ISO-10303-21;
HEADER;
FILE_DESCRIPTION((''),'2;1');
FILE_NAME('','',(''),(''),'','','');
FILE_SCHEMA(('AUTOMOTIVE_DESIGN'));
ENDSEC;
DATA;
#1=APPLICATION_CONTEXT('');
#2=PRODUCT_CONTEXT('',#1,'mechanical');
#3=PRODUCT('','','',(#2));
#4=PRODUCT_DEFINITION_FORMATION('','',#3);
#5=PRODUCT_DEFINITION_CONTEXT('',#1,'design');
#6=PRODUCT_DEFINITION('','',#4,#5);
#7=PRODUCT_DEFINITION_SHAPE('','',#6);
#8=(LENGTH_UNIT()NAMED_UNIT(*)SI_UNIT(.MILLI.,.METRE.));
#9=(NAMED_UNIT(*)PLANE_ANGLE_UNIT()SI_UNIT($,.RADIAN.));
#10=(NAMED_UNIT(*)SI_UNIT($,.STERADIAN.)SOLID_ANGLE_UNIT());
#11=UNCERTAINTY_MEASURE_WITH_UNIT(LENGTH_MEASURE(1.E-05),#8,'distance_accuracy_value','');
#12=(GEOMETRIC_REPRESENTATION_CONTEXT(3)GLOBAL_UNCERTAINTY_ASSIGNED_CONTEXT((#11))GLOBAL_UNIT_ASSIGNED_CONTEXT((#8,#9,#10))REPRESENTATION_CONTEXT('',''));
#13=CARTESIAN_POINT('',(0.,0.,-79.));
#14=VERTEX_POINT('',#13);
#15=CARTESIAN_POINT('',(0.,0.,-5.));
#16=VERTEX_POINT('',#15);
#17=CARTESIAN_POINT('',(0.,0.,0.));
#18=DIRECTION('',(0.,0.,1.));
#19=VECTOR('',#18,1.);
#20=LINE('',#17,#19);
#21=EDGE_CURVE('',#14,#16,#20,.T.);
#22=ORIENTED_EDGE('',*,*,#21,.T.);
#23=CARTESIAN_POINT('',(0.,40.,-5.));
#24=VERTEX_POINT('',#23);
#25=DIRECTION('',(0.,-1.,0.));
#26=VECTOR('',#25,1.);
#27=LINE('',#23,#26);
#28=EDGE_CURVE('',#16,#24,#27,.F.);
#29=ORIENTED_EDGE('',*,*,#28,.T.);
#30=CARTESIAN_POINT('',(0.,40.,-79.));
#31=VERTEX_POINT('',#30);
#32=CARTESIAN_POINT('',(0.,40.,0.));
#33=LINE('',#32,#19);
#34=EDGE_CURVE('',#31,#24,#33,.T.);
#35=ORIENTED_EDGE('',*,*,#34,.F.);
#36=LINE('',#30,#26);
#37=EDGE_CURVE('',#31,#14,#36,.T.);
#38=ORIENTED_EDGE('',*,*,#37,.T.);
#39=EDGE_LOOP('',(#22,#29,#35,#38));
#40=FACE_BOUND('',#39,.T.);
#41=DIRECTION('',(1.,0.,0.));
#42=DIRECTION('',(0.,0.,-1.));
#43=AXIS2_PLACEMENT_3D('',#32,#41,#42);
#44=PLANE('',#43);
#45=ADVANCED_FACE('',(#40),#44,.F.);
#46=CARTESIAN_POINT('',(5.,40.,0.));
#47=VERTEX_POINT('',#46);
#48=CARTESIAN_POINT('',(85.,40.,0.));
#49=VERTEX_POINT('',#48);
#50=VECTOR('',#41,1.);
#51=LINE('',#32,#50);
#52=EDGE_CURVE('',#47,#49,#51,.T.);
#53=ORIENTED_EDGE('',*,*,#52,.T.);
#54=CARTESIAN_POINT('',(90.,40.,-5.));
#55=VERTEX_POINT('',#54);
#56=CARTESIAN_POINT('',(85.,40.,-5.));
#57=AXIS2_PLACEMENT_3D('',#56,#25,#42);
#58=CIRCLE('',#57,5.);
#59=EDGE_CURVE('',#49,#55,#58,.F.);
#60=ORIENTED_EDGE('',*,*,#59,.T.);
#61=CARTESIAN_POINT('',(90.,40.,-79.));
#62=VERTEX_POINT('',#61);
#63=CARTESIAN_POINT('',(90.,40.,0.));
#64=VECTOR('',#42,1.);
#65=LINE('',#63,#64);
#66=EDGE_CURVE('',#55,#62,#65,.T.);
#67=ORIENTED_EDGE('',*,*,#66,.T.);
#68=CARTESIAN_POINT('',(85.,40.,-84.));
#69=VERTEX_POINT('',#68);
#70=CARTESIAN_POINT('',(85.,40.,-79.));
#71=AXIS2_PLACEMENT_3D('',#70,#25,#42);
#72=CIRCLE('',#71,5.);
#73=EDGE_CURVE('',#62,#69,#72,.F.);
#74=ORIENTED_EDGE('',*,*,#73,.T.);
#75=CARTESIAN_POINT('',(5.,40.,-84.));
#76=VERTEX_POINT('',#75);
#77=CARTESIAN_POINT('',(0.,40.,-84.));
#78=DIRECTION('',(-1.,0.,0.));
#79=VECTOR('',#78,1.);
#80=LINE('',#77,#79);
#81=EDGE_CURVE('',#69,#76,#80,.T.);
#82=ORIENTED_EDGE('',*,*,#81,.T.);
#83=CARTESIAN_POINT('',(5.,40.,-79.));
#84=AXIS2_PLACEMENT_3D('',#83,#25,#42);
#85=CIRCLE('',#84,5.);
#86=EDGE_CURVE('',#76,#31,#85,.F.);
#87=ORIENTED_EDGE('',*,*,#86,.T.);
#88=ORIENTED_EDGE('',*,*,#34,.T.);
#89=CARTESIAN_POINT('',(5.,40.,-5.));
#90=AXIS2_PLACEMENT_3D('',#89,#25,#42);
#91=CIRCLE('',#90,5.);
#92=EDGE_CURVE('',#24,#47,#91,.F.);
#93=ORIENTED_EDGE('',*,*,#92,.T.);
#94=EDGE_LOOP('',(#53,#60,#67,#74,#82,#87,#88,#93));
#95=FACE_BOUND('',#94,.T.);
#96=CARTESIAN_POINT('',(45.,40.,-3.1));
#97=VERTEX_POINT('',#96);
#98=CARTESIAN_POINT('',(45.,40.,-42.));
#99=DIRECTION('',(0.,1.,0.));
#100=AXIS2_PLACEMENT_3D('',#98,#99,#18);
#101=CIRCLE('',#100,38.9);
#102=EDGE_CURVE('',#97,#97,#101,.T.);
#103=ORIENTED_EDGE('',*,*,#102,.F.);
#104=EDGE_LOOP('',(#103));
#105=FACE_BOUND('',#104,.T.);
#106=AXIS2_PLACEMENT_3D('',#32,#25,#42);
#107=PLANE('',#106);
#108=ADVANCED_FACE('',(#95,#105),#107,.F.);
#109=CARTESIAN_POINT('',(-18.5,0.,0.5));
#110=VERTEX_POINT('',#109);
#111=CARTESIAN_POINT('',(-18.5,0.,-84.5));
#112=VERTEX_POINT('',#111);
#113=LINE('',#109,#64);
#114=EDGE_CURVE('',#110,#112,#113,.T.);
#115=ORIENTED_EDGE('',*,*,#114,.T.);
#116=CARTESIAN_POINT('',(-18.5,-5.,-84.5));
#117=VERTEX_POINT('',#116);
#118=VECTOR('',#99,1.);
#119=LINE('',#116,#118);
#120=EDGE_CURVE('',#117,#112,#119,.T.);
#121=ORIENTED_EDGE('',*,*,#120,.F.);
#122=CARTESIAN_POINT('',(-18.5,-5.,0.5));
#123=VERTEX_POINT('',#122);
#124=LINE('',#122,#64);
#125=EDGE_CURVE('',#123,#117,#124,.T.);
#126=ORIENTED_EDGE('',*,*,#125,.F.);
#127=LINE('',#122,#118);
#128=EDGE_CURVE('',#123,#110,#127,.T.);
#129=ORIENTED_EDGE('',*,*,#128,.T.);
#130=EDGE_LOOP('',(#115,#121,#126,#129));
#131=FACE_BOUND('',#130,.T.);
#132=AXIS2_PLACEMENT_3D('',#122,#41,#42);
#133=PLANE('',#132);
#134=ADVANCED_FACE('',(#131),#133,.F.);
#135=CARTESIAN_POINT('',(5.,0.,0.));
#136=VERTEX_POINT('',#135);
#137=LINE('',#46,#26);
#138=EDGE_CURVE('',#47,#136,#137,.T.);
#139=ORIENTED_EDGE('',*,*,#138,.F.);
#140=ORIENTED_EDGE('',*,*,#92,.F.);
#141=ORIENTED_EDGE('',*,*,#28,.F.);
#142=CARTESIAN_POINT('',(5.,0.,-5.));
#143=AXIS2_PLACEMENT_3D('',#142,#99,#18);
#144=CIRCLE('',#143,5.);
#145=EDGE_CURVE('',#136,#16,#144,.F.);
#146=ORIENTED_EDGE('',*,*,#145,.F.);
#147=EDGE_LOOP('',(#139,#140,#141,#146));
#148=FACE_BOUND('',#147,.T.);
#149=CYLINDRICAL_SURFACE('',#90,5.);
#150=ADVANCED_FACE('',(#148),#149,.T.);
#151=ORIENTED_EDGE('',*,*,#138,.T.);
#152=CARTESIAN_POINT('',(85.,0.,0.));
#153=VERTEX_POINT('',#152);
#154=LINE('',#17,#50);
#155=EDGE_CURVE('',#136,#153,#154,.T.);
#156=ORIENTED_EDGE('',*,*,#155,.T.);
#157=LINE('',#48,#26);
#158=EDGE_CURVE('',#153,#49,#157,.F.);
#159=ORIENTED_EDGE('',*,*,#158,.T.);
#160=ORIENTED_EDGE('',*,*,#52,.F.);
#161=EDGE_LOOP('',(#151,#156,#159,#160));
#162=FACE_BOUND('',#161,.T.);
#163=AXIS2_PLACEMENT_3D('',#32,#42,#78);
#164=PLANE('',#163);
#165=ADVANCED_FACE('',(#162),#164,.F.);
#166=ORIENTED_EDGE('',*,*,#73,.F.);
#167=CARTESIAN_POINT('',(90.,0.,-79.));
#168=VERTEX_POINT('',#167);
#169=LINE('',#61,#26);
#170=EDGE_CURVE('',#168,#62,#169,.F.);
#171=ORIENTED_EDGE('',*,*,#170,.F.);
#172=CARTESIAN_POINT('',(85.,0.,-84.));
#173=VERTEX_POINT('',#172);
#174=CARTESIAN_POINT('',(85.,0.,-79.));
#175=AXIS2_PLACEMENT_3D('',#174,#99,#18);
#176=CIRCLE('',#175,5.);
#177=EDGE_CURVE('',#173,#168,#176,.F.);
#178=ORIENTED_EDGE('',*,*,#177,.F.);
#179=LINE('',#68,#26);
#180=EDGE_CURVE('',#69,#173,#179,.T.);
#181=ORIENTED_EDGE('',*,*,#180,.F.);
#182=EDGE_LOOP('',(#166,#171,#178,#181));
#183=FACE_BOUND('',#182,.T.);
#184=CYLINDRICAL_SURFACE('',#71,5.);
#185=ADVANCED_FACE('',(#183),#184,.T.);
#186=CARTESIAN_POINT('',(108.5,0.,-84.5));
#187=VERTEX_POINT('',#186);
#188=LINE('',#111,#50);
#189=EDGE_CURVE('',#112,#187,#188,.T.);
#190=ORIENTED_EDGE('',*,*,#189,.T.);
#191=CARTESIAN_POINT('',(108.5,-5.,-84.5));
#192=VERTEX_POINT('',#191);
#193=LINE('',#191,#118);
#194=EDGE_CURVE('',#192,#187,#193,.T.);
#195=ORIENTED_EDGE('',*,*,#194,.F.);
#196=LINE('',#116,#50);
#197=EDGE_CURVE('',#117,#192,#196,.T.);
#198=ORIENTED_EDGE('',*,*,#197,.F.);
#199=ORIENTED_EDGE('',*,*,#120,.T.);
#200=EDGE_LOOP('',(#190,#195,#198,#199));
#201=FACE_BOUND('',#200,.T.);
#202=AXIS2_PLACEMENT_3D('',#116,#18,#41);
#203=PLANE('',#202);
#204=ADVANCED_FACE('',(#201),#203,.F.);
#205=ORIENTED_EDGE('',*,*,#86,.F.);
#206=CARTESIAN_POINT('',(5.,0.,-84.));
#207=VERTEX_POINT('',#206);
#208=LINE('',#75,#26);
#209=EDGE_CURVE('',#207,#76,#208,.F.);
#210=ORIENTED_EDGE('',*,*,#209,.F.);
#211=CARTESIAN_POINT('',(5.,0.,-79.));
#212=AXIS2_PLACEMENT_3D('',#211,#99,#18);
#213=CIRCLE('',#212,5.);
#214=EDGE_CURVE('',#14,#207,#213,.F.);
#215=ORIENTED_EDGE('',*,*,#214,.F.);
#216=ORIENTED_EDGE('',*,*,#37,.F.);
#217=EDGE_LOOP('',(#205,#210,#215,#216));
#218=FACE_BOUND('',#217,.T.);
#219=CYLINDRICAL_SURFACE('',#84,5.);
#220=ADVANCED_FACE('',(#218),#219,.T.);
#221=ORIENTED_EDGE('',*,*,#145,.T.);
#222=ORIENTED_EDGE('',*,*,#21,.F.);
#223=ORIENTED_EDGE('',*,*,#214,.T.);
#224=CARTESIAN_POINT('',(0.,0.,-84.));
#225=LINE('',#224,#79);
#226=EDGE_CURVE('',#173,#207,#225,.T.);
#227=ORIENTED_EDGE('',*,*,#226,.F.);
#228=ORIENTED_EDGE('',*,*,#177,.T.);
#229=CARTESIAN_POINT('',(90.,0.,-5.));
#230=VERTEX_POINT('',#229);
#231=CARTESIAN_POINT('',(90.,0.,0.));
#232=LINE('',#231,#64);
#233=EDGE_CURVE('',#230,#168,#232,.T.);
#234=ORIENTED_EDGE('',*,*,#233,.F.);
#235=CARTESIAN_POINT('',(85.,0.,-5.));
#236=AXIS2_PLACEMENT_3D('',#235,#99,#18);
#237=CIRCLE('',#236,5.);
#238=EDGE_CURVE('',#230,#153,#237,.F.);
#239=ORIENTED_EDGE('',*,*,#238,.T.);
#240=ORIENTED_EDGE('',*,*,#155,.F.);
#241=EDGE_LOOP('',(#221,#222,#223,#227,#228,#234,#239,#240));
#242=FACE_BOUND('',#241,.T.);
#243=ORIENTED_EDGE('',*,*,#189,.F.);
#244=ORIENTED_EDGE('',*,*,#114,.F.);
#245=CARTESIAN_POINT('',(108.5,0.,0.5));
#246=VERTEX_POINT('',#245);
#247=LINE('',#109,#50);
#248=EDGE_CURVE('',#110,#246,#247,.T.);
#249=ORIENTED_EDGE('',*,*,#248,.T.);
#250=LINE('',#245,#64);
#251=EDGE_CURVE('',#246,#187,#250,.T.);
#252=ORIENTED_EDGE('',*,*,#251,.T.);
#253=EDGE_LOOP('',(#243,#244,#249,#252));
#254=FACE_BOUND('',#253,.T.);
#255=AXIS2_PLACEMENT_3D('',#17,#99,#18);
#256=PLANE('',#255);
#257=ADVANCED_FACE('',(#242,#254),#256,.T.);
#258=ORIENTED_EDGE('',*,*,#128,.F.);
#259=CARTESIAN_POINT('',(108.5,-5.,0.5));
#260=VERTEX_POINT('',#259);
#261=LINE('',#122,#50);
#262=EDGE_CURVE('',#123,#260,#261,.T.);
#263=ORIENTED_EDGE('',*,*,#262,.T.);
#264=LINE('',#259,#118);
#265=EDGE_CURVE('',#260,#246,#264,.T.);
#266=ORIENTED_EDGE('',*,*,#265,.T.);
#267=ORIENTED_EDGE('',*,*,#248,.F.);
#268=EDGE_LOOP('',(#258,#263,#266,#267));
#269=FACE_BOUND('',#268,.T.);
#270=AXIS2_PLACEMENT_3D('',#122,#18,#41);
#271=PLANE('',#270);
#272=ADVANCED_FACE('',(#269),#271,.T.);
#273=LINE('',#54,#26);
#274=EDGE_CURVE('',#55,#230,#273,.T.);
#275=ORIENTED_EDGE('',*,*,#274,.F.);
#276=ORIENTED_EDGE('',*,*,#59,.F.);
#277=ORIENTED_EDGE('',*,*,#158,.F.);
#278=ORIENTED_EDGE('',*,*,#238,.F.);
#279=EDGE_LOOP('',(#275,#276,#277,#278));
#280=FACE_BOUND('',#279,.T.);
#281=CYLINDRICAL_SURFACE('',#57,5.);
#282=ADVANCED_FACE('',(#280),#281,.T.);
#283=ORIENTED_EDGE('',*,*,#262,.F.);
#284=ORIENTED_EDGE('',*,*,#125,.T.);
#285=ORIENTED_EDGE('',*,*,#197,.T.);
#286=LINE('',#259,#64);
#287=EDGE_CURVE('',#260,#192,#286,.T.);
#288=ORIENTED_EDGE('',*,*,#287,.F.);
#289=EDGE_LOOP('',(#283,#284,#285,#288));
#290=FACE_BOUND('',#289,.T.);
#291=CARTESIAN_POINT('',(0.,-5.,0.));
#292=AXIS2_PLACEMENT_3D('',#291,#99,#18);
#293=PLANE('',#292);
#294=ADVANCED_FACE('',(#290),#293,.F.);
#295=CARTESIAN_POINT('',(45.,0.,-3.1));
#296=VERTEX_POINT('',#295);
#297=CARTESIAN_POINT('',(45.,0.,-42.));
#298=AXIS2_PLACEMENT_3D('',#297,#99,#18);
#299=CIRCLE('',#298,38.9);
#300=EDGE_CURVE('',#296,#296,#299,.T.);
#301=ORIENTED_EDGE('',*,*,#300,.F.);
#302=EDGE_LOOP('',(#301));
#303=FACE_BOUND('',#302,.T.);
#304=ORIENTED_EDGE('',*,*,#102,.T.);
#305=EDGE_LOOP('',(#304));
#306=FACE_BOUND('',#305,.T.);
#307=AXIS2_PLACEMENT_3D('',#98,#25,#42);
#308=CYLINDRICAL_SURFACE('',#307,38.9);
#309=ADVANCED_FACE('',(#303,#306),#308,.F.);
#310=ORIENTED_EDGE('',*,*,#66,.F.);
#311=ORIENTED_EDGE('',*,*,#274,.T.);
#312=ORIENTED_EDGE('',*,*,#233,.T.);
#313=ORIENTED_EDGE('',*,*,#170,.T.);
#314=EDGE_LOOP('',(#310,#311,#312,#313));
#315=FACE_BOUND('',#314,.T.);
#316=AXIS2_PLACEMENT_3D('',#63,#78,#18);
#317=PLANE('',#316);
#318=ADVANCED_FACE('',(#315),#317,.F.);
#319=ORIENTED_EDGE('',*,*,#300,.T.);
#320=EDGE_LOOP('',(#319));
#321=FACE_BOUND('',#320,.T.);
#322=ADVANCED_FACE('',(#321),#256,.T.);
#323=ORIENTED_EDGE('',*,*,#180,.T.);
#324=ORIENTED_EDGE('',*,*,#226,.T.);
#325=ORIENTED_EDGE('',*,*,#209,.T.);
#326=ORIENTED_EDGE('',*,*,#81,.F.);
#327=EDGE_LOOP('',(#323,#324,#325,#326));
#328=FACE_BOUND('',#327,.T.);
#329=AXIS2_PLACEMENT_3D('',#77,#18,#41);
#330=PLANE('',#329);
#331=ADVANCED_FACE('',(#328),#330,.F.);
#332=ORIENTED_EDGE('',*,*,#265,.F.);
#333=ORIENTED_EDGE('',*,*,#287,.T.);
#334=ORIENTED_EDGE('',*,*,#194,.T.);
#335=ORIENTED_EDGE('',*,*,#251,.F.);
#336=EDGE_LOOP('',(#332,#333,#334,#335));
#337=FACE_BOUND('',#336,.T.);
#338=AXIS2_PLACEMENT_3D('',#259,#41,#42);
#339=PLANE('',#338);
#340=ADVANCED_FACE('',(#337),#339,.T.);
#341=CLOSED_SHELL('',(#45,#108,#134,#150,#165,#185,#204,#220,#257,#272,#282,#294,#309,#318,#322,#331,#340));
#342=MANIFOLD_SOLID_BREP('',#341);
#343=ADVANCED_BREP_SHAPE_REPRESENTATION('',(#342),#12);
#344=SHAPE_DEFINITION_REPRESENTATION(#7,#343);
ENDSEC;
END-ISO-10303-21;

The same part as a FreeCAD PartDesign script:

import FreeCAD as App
import Part
import Sketcher
from FreeCAD import Vector


def edges_at(feature, points):
    """Names of the edges that pass closest to the given points."""
    edges = feature.Shape.Edges
    near = lambda p: min(range(len(edges)), key=lambda i: edges[i].distToShape(Part.Vertex(*p))[0])
    return sorted({f"Edge{near(p) + 1}" for p in points})


def add_polygon(sketch, points):
    """Adds a closed chain of lines whose ends are joined by coincident constraints."""
    first, n = sketch.GeometryCount, len(points)
    for a, b in zip(points, points[1:] + points[:1]):
        sketch.addGeometry(Part.LineSegment(App.Vector(*a, 0), App.Vector(*b, 0)), False)
    for i in range(n):
        sketch.addConstraint(Sketcher.Constraint("Coincident", first + i, 2, first + (i + 1) % n, 1))

doc = App.newDocument("Part")
body = doc.addObject("PartDesign::Body", "Body")

sketch1 = body.newObject("Sketcher::SketchObject", "Sketch")
sketch1.AttachmentSupport = (doc.getObject("XZ_Plane"), [""])
sketch1.MapMode = "FlatFace"
add_polygon(sketch1, [(0, -84), (0, 0), (90, 0), (90, -84)])
sketch1.addGeometry(Part.Circle(Vector(45, -42, 0), Vector(0, 0, 1), 39), False)
sketch1.addConstraint(Sketcher.Constraint("Vertical", 0))
sketch1.addConstraint(Sketcher.Constraint("Horizontal", 1))
sketch1.addConstraint(Sketcher.Constraint("Vertical", 2))
sketch1.addConstraint(Sketcher.Constraint("Horizontal", 3))
sketch1.addConstraint(Sketcher.Constraint("Coincident", 0, 2, -1, 1))
sketch1.addConstraint(Sketcher.Constraint("Diameter", 4, 77.8))
sketch1.addConstraint(Sketcher.Constraint("DistanceX", 1, 1, 1, 2, 90.0))
sketch1.addConstraint(Sketcher.Constraint("DistanceY", 0, 1, 0, 2, 84.0))
sketch1.addConstraint(Sketcher.Constraint("DistanceX", -1, 1, 4, 3, 45.0))
sketch1.addConstraint(Sketcher.Constraint("DistanceY", 4, 3, -1, 1, 42.0))
pad1 = body.newObject("PartDesign::Pad", "Pad")
pad1.Profile = sketch1
pad1.Length = 40
pad1.Reversed = True

sketch2 = body.newObject("Sketcher::SketchObject", "Sketch001")
sketch2.AttachmentSupport = (doc.getObject("XZ_Plane"), [""])
sketch2.MapMode = "FlatFace"
add_polygon(sketch2, [(-18, 0), (-18, -84), (108, -84), (108, 0)])
sketch2.addConstraint(Sketcher.Constraint("Vertical", 0))
sketch2.addConstraint(Sketcher.Constraint("Horizontal", 1))
sketch2.addConstraint(Sketcher.Constraint("Vertical", 2))
sketch2.addConstraint(Sketcher.Constraint("Horizontal", 3))
sketch2.addConstraint(Sketcher.Constraint("DistanceX", 1, 1, 1, 2, 127.0))
sketch2.addConstraint(Sketcher.Constraint("DistanceY", 0, 2, 0, 1, 85.0))
sketch2.addConstraint(Sketcher.Constraint("DistanceX", 0, 2, -1, 1, 18.5))
sketch2.addConstraint(Sketcher.Constraint("DistanceY", 0, 2, -1, 1, 84.5))
pad2 = body.newObject("PartDesign::Pad", "Pad001")
pad2.Profile = sketch2
pad2.Length = 5
doc.recompute()

fillet = body.newObject("PartDesign::Fillet", "Fillet")
fillet.Base = (pad2, edges_at(pad2, [
    (0, 20, -84),
    (90, 20, -84),
    (90, 20, 0),
    (0, 20, 0),
]))
fillet.Radius = 5

doc.recompute()
